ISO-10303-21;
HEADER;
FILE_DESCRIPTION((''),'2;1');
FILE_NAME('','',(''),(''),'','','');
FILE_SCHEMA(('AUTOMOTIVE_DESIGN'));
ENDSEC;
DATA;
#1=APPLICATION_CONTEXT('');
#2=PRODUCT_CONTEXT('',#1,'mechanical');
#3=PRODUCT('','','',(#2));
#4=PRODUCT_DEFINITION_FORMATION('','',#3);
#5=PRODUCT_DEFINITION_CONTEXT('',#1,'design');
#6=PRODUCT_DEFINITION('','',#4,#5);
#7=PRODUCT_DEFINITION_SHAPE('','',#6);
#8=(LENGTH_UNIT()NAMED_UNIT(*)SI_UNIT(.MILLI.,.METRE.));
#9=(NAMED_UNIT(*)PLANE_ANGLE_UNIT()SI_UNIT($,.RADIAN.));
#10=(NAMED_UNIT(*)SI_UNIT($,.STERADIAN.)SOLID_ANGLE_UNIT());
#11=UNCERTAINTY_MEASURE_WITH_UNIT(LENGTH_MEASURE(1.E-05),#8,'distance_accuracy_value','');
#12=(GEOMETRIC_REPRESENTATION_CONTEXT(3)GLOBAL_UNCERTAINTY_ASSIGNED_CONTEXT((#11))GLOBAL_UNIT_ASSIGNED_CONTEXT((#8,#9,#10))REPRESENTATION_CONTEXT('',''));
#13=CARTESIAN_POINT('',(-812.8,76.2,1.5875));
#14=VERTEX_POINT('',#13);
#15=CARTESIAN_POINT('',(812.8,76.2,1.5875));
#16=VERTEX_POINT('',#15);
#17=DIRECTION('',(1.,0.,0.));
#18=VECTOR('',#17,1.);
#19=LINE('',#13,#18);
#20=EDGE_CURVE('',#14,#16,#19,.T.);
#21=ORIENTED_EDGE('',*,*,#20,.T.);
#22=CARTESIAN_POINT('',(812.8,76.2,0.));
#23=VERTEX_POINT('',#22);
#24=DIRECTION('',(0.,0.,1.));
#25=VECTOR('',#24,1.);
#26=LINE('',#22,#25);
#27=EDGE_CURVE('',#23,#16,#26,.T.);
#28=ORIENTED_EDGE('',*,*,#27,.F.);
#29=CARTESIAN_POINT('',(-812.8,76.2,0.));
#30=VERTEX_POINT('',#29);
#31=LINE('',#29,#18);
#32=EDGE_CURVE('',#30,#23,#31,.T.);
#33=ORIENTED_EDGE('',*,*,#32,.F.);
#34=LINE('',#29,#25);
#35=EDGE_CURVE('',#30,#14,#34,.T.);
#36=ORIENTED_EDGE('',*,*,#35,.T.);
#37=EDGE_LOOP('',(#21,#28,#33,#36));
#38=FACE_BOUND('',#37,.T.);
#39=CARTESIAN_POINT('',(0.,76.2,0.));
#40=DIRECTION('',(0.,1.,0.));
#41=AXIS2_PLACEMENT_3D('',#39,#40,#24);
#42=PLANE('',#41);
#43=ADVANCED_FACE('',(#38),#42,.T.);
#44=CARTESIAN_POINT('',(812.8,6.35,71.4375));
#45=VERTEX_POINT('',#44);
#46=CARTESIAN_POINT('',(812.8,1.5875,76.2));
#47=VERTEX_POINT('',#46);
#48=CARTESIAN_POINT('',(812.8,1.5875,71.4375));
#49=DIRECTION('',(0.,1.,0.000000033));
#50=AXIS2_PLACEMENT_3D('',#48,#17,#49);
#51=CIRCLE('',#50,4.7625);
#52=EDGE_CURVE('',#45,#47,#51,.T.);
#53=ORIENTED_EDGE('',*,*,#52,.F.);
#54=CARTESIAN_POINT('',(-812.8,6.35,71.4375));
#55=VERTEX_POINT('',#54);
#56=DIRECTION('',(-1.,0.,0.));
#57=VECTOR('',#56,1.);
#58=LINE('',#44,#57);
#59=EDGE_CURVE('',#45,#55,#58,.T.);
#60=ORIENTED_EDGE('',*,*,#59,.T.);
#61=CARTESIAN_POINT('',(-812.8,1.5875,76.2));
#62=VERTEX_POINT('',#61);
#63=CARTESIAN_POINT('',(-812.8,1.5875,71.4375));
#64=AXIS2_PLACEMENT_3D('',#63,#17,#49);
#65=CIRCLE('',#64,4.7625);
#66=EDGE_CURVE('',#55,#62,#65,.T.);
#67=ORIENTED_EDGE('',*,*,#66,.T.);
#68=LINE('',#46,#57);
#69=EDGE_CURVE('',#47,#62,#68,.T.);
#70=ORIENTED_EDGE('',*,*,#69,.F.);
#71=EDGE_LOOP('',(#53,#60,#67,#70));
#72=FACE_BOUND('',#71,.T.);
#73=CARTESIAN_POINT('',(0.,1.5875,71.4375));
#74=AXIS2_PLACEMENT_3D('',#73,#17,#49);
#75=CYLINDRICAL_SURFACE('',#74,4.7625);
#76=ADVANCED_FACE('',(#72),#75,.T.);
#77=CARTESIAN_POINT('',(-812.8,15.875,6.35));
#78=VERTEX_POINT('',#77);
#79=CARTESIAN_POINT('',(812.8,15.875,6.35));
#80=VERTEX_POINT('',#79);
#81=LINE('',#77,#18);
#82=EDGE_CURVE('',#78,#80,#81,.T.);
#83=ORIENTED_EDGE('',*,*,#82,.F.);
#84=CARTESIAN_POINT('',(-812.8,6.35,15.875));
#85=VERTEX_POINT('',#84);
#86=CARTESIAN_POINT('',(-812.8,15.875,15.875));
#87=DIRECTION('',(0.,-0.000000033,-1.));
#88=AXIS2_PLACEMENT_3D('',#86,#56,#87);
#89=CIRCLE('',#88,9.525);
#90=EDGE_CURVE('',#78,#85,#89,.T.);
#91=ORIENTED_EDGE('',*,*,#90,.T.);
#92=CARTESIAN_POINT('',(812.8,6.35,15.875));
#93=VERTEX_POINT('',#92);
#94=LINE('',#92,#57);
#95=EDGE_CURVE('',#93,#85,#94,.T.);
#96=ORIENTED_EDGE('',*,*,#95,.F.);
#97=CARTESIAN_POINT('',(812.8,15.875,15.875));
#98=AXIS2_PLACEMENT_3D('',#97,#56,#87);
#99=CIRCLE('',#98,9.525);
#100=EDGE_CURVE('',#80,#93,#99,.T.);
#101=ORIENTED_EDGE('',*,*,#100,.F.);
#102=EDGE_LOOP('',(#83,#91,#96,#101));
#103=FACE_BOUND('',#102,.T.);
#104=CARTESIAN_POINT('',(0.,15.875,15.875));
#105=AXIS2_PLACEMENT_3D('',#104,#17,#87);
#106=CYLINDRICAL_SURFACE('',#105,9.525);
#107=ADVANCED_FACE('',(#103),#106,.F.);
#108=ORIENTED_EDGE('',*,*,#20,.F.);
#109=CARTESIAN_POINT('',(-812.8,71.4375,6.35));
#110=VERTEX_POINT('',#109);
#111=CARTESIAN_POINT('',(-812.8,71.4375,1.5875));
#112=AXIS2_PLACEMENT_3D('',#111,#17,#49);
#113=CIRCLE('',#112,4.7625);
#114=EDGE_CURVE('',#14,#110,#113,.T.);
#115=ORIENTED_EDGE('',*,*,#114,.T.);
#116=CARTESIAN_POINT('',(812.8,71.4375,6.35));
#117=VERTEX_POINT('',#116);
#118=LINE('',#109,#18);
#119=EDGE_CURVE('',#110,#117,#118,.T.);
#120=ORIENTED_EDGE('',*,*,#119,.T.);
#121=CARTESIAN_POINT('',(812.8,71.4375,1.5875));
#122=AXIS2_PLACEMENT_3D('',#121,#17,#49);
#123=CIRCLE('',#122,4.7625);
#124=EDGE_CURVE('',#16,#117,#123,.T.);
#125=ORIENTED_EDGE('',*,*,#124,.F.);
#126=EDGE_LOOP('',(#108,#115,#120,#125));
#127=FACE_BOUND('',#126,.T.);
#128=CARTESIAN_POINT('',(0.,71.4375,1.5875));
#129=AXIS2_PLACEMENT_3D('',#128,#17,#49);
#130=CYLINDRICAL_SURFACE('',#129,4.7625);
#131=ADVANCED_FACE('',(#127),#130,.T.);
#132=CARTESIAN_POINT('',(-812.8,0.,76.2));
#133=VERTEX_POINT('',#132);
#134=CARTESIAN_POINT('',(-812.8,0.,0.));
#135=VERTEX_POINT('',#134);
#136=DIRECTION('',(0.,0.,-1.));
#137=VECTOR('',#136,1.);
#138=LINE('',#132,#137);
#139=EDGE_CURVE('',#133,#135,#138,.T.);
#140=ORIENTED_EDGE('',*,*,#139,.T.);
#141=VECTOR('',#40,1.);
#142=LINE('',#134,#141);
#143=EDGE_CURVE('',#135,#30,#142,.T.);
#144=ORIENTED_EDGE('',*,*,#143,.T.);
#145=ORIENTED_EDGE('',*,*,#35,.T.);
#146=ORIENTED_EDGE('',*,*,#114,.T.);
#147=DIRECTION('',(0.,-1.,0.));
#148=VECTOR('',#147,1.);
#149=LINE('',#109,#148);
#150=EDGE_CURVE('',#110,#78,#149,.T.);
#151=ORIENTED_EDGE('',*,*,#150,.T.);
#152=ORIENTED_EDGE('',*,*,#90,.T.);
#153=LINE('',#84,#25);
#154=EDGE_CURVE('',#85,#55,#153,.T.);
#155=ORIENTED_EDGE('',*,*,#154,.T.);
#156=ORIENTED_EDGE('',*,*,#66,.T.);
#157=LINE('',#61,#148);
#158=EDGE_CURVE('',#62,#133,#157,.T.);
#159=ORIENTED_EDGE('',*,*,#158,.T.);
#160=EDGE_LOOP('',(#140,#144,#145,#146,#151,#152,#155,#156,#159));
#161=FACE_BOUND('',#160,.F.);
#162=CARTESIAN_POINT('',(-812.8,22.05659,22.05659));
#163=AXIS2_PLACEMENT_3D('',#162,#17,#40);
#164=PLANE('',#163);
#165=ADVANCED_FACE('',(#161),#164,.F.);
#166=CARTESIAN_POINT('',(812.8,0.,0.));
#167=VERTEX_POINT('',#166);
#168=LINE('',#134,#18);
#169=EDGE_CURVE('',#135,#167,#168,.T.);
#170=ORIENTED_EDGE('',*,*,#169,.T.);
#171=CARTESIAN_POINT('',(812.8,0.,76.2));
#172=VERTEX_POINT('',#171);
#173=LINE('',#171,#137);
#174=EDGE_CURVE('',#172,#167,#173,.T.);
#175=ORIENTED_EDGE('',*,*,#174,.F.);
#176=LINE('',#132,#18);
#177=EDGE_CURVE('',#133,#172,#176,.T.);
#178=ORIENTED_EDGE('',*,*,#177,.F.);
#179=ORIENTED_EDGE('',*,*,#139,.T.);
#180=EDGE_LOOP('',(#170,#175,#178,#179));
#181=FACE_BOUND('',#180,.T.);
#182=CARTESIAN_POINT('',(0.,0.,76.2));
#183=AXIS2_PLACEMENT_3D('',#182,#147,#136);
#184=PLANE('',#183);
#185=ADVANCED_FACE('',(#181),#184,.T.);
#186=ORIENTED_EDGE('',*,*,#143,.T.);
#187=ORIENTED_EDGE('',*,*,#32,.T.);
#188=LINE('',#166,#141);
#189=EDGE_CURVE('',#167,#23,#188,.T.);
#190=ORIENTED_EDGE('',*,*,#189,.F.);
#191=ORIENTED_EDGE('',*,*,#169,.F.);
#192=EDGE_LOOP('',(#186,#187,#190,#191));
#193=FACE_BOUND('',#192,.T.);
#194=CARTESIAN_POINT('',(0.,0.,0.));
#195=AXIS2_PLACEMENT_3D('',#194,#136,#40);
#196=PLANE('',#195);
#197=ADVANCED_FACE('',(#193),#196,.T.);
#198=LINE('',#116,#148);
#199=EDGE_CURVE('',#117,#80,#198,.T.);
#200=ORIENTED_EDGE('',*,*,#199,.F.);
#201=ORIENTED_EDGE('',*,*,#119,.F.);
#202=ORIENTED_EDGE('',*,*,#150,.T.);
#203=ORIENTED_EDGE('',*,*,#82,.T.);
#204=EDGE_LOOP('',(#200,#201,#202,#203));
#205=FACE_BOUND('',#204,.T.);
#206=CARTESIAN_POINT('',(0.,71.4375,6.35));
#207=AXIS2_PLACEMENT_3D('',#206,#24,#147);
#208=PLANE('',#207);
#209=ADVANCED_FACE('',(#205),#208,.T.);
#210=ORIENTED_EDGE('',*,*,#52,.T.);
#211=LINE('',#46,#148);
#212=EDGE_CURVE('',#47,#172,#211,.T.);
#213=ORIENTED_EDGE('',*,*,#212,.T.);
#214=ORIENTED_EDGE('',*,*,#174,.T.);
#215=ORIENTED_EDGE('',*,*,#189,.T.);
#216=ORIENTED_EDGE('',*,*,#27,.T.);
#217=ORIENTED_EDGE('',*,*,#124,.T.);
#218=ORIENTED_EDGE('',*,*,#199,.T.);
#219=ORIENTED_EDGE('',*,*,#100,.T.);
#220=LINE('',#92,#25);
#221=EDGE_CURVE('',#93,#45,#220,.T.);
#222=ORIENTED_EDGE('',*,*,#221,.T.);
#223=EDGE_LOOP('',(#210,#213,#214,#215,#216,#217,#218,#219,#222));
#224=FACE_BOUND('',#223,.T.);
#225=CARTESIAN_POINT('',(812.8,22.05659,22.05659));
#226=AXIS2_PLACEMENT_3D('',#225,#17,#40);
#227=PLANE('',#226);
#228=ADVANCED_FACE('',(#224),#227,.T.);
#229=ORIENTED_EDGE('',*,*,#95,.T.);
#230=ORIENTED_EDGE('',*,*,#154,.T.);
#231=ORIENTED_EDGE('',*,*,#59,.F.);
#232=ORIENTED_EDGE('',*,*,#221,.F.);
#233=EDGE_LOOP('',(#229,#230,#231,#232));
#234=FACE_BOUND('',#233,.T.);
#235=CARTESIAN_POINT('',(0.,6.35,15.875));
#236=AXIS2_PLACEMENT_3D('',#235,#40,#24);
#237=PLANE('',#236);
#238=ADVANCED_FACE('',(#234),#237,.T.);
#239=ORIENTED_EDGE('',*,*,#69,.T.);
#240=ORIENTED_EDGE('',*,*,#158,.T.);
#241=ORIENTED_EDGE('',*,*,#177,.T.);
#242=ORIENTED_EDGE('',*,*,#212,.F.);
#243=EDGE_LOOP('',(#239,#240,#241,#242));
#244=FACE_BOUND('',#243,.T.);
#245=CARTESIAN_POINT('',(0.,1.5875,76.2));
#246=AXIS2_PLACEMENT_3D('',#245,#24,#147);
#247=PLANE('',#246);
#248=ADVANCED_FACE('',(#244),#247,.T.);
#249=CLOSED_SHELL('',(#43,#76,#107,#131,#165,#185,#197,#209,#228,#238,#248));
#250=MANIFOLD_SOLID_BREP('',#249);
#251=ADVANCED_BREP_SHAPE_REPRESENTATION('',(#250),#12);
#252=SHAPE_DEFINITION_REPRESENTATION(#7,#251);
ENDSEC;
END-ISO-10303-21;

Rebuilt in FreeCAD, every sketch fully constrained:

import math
import FreeCAD as App
import Part
import Sketcher

V = App.Vector
Q = App.Units.Quantity

doc = App.newDocument("Part")
body = doc.addObject("PartDesign::Body", "Body")

sketch1 = doc.addObject("Sketcher::SketchObject", "Sketch")
body.addObject(sketch1)
sketch1.AttachmentSupport = (doc.YZ_Plane, [""])
sketch1.MapMode = "FlatFace"
sketch1.addGeometry([
    Part.LineSegment(V(1.5875, 76.2, 0), V(0, 76.2, 0)),
    Part.LineSegment(V(0, 76.2, 0), V(0, 0, 0)),
    Part.LineSegment(V(0, 0, 0), V(76.2, 0, 0)),
    Part.LineSegment(V(76.2, 0, 0), V(76.2, 1.5875, 0)),
    Part.ArcOfCircle(Part.Circle(V(71.4375, 1.5875, 0), V(0, 0, 1), 4.7625), math.radians(0.000002), math.radians(89.999998)),
    Part.LineSegment(V(71.4375, 6.35, 0), V(15.875, 6.35, 0)),
    Part.ArcOfCircle(Part.Circle(V(15.875, 15.875, 0), V(0, 0, 1), 9.525), math.radians(-179.999998), math.radians(-90.000002)),
    Part.LineSegment(V(6.35, 15.875, 0), V(6.35, 71.4375, 0)),
    Part.ArcOfCircle(Part.Circle(V(1.5875, 71.4375, 0), V(0, 0, 1), 4.7625), math.radians(0.000002), math.radians(89.999998)),
], False)
sketch1.addConstraint([
    Sketcher.Constraint("Coincident", 0, 2, 1, 1),
    Sketcher.Constraint("Coincident", 1, 2, 2, 1),
    Sketcher.Constraint("Coincident", 2, 2, 3, 1),
    Sketcher.Constraint("Tangent", 3, 2, 4, 1),
    Sketcher.Constraint("Tangent", 4, 2, 5, 1),
    Sketcher.Constraint("Tangent", 5, 2, 6, 2),
    Sketcher.Constraint("Tangent", 6, 1, 7, 1),
    Sketcher.Constraint("Tangent", 7, 2, 8, 1),
    Sketcher.Constraint("Tangent", 8, 2, 0, 1),
    Sketcher.Constraint("Horizontal", 0),
    Sketcher.Constraint("Vertical", 1),
    Sketcher.Constraint("Horizontal", 2),
    Sketcher.Constraint("Vertical", 3),
    Sketcher.Constraint("Horizontal", 5),
    Sketcher.Constraint("Vertical", 7),
    Sketcher.Constraint("Coincident", 1, 2, -1, 1),
    Sketcher.Constraint("Equal", 4, 8),
    Sketcher.Constraint("Equal", 2, 1),
    Sketcher.Constraint("Equal", 0, 3),
    Sketcher.Constraint("DistanceX", 2, 1, 2, 2, Q("3 in")),
    Sketcher.Constraint("Radius", 4, Q("0.1875 in")),
    Sketcher.Constraint("Radius", 6, Q("0.375 in")),
    Sketcher.Constraint("DistanceX", 0, 2, 0, 1, Q("0.0625 in")),
])
pad1 = doc.addObject("PartDesign::Pad", "Pad")
body.addObject(pad1)
pad1.Profile = sketch1
pad1.Length = Q("64 in")
pad1.Midplane = True

doc.recompute()
